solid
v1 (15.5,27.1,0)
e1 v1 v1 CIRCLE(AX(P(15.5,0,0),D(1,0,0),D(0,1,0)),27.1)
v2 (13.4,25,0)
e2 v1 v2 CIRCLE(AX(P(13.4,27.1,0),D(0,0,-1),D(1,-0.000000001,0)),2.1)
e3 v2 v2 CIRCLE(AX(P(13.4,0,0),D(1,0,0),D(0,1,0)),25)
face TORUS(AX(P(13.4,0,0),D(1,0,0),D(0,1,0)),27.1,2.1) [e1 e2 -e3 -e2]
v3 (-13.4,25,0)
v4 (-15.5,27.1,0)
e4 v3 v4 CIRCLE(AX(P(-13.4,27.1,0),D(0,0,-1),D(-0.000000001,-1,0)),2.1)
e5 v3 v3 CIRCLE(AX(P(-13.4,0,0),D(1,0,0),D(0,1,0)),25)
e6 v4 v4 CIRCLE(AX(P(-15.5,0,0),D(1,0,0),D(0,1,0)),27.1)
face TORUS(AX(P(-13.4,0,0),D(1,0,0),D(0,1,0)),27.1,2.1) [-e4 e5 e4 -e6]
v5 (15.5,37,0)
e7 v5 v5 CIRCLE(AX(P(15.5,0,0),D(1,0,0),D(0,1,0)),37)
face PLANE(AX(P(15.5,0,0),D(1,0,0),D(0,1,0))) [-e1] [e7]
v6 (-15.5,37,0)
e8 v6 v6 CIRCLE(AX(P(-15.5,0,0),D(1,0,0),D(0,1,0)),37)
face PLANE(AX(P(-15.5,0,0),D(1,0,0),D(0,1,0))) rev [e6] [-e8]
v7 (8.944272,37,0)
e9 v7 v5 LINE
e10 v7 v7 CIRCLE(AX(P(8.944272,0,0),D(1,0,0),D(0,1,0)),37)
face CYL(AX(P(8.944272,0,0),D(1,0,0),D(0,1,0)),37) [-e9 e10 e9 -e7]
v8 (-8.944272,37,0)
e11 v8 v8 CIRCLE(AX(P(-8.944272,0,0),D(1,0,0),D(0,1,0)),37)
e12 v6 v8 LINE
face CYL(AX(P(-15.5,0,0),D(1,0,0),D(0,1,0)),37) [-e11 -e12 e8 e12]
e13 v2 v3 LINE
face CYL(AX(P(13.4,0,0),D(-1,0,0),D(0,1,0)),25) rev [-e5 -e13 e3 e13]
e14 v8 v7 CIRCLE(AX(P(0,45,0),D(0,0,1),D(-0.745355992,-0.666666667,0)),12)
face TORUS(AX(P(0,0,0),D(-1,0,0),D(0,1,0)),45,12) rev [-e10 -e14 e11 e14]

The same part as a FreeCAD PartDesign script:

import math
import FreeCAD as App
import Part
import Sketcher

doc = App.newDocument("Part")
body = doc.addObject("PartDesign::Body", "Body")

# Sketch on XY plane
sketch1 = body.newObject("Sketcher::SketchObject", "Sketch")
sketch1.AttachmentSupport = (doc.getObject("XY_Plane"), [""])
sketch1.MapMode = "FlatFace"
sketch1.addGeometry([
    Part.LineSegment(App.Vector(15.5, 37, 0), App.Vector(8.944272, 37, 0)),  # 0
    Part.ArcOfCircle(Part.Circle(App.Vector(0, 45, 0), App.Vector(0, 0, 1), 12), math.radians(-138.189685), math.radians(-41.810315)),  # 1
    Part.LineSegment(App.Vector(-8.944272, 37, 0), App.Vector(-15.5, 37, 0)),  # 2
    Part.LineSegment(App.Vector(-15.5, 37, 0), App.Vector(-15.5, 27.1, 0)),  # 3
    Part.ArcOfCircle(Part.Circle(App.Vector(-13.4, 27.1, 0), App.Vector(0, 0, 1), 2.1), math.radians(-180), math.radians(-90)),  # 4
    Part.LineSegment(App.Vector(-13.4, 25, 0), App.Vector(13.4, 25, 0)),  # 5
    Part.ArcOfCircle(Part.Circle(App.Vector(13.4, 27.1, 0), App.Vector(0, 0, 1), 2.1), math.radians(-90), math.radians(0)),  # 6
    Part.LineSegment(App.Vector(15.5, 27.1, 0), App.Vector(15.5, 37, 0)),  # 7
], False)
sketch1.addConstraint([
    Sketcher.Constraint("Coincident", 0, 2, 1, 2),
    Sketcher.Constraint("Coincident", 1, 1, 2, 1),
    Sketcher.Constraint("Coincident", 2, 2, 3, 1),
    Sketcher.Constraint("Tangent", 3, 2, 4, 1),
    Sketcher.Constraint("Tangent", 4, 2, 5, 1),
    Sketcher.Constraint("Tangent", 5, 2, 6, 1),
    Sketcher.Constraint("Tangent", 6, 2, 7, 1),
    Sketcher.Constraint("Coincident", 7, 2, 0, 1),
    Sketcher.Constraint("Horizontal", 0),
    Sketcher.Constraint("Horizontal", 2),
    Sketcher.Constraint("Vertical", 3),
    Sketcher.Constraint("Horizontal", 5),
    Sketcher.Constraint("Vertical", 7),
    Sketcher.Constraint("Equal", 4, 6),
    Sketcher.Constraint("Symmetric", 0, 2, 1, 1, -2),
    Sketcher.Constraint("Equal", 0, 2),
    Sketcher.Constraint("Radius", 1, 12.0),
    Sketcher.Constraint("Radius", 4, 2.1),
    Sketcher.Constraint("DistanceX", 5, 1, 5, 2, 26.8),
    Sketcher.Constraint("DistanceY", 3, 2, 3, 1, 9.9),
    Sketcher.Constraint("DistanceY", -1, 1, 1, 3, 45.0),
    Sketcher.Constraint("DistanceY", -1, 1, 0, 2, 37.0),
])
revolution = body.newObject("PartDesign::Revolution", "Revolution")
revolution.Profile = sketch1
revolution.ReferenceAxis = (sketch1, ["H_Axis"])
revolution.Angle = 360

doc.recompute()
